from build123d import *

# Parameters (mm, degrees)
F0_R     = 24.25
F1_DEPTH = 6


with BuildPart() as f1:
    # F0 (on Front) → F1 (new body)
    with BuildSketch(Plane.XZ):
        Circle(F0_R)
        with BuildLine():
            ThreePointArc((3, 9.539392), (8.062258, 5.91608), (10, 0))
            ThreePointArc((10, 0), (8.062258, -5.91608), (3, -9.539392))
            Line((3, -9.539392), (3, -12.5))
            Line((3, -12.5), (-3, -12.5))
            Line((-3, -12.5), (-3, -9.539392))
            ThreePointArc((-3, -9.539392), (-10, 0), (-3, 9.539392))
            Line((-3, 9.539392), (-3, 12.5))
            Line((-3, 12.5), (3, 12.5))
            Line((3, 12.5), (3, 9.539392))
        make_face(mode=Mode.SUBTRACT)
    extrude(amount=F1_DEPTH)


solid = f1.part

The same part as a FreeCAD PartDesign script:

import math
import FreeCAD as App
import Part
import Sketcher

V = App.Vector
Q = App.Units.Quantity

doc = App.newDocument("Part")
body = doc.addObject("PartDesign::Body", "Body")

# Sketch on XZ plane
sketch1 = body.newObject("Sketcher::SketchObject", "Sketch")
sketch1.AttachmentSupport = (doc.getObject("XZ_Plane"), [""])
sketch1.MapMode = "FlatFace"
sketch1.addGeometry([
    Part.Circle(V(0, 0, 0), V(0, 0, 1), 24.2),  # 0
    Part.LineSegment(V(3, 12.5, 0), V(3, 9.5, 0)),  # 1
    Part.ArcOfCircle(Part.Circle(V(0, 0, 0), V(0, 0, 1), 10), math.radians(0), math.radians(73)),  # 2
    Part.ArcOfCircle(Part.Circle(V(0, 0, 0), V(0, 0, 1), 10), math.radians(-73), math.radians(0)),  # 3
    Part.LineSegment(V(3, -9.5, 0), V(3, -12.5, 0)),  # 4
    Part.LineSegment(V(3, -12.5, 0), V(-3, -12.5, 0)),  # 5
    Part.LineSegment(V(-3, -12.5, 0), V(-3, -9.5, 0)),  # 6
    Part.ArcOfCircle(Part.Circle(V(0, 0, 0), V(0, 0, 1), 10), math.radians(107), math.radians(253)),  # 7
    Part.LineSegment(V(-3, 9.5, 0), V(-3, 12.5, 0)),  # 8
    Part.LineSegment(V(-3, 12.5, 0), V(3, 12.5, 0)),  # 9
], False)
sketch1.addConstraint([
    Sketcher.Constraint("Coincident", 1, 2, 2, 2),
    Sketcher.Constraint("Tangent", 2, 1, 3, 2),
    Sketcher.Constraint("Coincident", 3, 1, 4, 1),
    Sketcher.Constraint("Coincident", 4, 2, 5, 1),
    Sketcher.Constraint("Coincident", 5, 2, 6, 1),
    Sketcher.Constraint("Coincident", 6, 2, 7, 2),
    Sketcher.Constraint("Coincident", 7, 1, 8, 1),
    Sketcher.Constraint("Coincident", 8, 2, 9, 1),
    Sketcher.Constraint("Coincident", 9, 2, 1, 1),
    Sketcher.Constraint("Vertical", 1),
    Sketcher.Constraint("Vertical", 4),
    Sketcher.Constraint("Horizontal", 5),
    Sketcher.Constraint("Vertical", 6),
    Sketcher.Constraint("Vertical", 8),
    Sketcher.Constraint("Horizontal", 9),
    Sketcher.Constraint("Coincident", 0, 3, -1, 1),
    Sketcher.Constraint("Coincident", 2, 3, -1, 1),
    Sketcher.Constraint("Coincident", 7, 3, -1, 1),
    Sketcher.Constraint("Equal", 2, 3),
    Sketcher.Constraint("Equal", 3, 7),
    Sketcher.Constraint("Symmetric", 4, 2, 8, 2, -1, 1),
    Sketcher.Constraint("PointOnObject", 2, 1, -1),
    Sketcher.Constraint("Horizontal", 3, 1, 6, 2),
    Sketcher.Constraint("Horizontal", 1, 2, 7, 1),
    Sketcher.Constraint("Radius", 2, Q("9.999999 mm")),
    Sketcher.Constraint("Diameter", 0, Q("48.5 mm")),
    Sketcher.Constraint("DistanceX", 5, 2, 5, 1, Q("6 mm")),
    Sketcher.Constraint("DistanceY", 4, 2, -1, 1, Q("12.5 mm")),
])
pad1 = body.newObject("PartDesign::Pad", "Pad")
pad1.Profile = sketch1
pad1.Length = 6

doc.recompute()
